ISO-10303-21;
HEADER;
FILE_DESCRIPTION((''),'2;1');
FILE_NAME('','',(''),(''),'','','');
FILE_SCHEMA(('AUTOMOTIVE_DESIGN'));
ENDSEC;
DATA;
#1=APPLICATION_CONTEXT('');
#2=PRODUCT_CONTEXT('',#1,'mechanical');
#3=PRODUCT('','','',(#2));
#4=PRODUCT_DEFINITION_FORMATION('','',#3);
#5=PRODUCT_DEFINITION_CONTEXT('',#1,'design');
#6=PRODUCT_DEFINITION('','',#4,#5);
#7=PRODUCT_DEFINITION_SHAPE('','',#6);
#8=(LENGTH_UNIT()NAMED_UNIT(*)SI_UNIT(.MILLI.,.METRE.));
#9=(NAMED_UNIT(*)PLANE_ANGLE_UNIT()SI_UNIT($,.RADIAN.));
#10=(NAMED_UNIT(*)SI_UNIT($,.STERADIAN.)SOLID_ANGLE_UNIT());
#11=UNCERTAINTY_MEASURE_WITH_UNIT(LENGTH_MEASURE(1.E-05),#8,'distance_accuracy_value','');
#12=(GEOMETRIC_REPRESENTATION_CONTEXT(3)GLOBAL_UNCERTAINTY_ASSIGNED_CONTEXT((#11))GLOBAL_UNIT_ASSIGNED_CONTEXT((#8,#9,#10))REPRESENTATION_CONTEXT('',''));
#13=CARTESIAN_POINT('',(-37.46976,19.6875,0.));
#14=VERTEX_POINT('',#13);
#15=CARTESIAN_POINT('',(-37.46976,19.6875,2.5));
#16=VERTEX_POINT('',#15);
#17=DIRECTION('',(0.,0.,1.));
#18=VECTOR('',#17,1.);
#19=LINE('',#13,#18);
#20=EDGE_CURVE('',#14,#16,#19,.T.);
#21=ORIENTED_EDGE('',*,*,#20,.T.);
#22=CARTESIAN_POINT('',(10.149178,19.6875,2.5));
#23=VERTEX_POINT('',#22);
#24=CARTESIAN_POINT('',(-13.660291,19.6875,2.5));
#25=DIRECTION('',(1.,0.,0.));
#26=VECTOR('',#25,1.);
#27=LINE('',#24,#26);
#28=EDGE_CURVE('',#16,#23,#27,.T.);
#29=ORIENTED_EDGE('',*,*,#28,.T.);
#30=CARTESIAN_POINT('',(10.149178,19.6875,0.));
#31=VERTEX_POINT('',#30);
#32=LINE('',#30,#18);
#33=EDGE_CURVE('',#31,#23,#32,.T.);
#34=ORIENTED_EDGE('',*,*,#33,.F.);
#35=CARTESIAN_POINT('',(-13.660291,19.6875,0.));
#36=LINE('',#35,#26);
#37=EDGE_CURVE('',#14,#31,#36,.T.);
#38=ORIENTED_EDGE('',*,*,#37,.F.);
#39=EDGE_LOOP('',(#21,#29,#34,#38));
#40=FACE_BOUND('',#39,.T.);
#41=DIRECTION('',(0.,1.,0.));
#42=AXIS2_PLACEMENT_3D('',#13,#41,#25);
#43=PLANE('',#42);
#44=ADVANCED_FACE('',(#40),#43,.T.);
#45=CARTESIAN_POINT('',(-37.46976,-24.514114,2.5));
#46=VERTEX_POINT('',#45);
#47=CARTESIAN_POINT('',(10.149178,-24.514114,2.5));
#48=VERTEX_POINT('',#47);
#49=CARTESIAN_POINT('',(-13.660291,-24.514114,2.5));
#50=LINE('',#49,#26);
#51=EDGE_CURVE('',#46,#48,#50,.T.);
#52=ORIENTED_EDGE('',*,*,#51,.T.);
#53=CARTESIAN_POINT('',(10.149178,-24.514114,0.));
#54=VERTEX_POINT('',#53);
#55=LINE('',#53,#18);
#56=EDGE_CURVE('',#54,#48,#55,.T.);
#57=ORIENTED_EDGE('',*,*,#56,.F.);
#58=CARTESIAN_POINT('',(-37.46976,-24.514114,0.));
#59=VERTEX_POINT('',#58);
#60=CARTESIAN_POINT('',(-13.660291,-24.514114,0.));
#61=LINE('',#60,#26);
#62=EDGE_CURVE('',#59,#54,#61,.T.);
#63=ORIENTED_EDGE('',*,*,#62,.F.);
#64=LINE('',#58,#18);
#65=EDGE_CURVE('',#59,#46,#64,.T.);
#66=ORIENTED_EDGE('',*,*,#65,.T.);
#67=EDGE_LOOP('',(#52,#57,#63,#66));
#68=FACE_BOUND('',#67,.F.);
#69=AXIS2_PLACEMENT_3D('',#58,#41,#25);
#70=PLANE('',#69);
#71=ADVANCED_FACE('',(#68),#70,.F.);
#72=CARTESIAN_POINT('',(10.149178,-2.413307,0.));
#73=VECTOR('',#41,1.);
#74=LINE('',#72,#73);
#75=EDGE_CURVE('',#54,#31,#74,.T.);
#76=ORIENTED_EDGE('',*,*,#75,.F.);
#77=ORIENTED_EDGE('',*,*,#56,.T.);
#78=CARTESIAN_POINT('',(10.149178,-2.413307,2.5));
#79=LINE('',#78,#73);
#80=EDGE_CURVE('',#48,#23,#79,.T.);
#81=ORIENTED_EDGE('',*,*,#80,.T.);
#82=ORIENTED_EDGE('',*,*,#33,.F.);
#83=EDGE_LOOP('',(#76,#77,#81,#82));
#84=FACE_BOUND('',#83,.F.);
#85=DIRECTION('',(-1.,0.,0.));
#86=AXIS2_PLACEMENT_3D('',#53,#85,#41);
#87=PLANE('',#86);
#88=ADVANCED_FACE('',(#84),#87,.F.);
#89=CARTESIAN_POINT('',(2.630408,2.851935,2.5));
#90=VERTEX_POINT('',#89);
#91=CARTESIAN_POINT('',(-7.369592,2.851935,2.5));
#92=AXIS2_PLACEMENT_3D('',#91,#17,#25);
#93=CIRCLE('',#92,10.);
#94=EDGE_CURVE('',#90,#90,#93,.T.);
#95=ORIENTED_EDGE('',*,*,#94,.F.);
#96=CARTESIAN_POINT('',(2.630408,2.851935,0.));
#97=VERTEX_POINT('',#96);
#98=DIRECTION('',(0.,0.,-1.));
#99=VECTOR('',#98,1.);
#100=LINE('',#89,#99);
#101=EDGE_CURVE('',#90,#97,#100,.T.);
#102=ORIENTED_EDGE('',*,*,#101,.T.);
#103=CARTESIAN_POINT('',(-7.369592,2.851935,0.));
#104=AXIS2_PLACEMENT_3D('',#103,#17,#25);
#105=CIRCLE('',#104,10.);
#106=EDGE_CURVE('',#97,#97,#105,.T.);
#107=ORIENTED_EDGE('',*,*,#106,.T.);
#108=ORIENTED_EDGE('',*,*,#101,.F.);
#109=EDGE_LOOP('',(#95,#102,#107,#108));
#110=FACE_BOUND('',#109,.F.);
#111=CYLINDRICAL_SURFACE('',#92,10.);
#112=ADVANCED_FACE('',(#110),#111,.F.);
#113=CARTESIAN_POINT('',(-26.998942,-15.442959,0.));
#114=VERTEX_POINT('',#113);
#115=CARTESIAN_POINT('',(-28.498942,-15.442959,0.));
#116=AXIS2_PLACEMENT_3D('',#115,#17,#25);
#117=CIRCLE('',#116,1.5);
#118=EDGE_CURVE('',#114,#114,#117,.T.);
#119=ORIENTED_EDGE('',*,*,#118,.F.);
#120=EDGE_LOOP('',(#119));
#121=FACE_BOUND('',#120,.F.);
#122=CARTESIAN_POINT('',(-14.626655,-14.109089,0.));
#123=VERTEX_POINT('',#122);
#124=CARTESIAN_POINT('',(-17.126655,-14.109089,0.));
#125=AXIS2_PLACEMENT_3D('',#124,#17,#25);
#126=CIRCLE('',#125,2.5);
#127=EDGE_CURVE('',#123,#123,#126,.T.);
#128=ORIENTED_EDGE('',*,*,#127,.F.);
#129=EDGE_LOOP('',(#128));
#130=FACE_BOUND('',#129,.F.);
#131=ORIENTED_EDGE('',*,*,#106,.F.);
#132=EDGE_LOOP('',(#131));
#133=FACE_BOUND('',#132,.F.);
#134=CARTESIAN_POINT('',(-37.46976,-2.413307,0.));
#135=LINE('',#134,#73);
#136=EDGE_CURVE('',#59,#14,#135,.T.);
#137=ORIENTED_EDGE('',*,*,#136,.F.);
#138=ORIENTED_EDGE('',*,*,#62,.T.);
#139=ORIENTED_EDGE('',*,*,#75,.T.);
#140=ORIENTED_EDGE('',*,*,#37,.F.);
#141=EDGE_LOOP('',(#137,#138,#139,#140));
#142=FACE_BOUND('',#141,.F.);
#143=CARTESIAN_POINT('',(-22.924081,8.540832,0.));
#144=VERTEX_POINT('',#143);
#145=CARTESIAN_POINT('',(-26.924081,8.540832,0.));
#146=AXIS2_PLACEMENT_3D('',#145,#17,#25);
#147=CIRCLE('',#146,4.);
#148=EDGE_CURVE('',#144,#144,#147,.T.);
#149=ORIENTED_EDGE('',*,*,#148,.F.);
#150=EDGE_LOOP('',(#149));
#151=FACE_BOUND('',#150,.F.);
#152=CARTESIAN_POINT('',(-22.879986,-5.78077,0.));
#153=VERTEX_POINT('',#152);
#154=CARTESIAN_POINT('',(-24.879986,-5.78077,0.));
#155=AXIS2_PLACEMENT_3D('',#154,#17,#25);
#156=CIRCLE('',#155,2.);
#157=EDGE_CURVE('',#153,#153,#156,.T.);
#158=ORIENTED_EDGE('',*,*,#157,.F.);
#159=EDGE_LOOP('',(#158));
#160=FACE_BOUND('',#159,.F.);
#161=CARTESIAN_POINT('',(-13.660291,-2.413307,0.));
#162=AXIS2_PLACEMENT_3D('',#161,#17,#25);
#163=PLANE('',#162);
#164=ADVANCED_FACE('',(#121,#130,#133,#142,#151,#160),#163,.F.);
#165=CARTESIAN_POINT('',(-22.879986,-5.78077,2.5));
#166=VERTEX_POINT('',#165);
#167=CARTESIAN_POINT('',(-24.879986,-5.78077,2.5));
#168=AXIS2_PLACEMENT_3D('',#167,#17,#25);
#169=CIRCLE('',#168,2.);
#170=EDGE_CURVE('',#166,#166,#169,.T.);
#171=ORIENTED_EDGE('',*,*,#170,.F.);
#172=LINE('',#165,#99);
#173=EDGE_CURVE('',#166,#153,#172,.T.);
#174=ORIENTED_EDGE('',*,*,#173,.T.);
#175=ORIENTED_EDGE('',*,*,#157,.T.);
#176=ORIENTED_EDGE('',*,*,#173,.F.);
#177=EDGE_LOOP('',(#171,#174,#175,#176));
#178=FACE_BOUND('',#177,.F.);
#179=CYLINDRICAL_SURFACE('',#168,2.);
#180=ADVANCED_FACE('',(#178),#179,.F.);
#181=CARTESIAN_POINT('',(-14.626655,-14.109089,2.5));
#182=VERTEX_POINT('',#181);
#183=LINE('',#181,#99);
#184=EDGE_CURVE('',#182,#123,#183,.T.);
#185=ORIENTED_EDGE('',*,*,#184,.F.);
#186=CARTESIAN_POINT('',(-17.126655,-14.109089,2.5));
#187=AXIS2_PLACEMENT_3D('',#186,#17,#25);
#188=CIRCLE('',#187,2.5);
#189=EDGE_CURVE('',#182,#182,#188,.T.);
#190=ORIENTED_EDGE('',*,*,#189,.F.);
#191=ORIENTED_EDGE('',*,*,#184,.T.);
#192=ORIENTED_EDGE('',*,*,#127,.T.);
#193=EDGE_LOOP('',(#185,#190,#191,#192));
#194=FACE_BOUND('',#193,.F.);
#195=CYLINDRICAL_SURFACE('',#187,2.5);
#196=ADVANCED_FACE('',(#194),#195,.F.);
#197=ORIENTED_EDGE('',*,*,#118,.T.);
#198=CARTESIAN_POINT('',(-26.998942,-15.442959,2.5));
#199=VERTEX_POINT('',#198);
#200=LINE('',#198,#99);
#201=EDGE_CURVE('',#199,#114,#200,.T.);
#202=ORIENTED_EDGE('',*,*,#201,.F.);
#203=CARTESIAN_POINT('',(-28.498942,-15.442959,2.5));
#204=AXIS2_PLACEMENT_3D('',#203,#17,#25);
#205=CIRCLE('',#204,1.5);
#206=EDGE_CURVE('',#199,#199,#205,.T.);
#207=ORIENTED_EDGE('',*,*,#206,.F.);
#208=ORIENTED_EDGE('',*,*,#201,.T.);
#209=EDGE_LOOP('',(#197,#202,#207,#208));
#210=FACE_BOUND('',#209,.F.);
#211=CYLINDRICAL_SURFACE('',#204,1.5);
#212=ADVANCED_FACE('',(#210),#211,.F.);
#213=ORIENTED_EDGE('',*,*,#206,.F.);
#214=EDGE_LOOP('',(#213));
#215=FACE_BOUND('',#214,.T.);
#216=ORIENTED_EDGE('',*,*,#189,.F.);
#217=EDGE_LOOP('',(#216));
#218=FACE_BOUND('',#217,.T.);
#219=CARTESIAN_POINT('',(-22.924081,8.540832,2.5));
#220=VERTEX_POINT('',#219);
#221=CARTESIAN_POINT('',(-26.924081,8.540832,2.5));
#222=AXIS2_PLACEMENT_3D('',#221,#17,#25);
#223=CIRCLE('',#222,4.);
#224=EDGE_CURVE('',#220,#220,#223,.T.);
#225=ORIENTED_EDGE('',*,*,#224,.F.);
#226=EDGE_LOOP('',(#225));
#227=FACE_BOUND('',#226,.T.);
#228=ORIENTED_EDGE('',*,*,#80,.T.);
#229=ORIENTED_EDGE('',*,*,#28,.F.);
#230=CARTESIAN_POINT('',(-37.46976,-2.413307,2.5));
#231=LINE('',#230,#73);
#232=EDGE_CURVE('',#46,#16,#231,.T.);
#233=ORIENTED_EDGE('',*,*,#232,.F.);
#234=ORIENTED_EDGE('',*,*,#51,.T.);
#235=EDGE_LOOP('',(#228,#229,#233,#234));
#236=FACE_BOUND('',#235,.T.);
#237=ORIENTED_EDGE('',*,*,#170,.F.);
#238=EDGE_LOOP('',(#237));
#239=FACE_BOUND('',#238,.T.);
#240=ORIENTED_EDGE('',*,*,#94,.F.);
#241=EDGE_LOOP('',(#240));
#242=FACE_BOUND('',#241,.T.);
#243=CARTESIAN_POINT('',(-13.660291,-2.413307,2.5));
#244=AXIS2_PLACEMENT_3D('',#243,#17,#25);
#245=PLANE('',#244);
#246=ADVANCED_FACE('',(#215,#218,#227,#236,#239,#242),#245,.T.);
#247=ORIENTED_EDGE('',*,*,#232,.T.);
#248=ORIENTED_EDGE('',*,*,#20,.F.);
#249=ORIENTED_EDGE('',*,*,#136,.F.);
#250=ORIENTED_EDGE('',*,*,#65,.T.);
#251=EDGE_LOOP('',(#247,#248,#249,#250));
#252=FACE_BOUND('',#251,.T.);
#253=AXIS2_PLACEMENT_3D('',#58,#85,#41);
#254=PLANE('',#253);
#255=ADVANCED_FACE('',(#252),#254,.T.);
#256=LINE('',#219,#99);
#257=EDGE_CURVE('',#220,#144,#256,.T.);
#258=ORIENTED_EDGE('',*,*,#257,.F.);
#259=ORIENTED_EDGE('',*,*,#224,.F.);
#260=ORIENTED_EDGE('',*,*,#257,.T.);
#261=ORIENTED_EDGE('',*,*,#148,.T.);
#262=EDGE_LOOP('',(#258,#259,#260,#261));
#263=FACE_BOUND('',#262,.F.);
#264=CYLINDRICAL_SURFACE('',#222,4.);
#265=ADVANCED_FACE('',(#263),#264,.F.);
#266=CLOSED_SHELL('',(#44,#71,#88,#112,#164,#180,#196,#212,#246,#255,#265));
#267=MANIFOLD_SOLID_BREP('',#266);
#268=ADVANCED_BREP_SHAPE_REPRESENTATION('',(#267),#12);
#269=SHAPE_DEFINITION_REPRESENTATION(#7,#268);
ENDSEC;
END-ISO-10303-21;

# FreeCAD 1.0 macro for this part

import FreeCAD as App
import Part
import Sketcher

doc = App.newDocument("Part")
body = doc.addObject("PartDesign::Body", "Body")

sketch1 = body.newObject("Sketcher::SketchObject", "Sketch")
sketch1.AttachmentSupport = (doc.getObject("XY_Plane"), [""])
sketch1.MapMode = "FlatFace"
sketch1.addGeometry([
    Part.LineSegment(App.Vector(-37, 20, 0), App.Vector(-37, -25, 0)),
    Part.LineSegment(App.Vector(-37, -25, 0), App.Vector(10, -25, 0)),
    Part.LineSegment(App.Vector(10, -25, 0), App.Vector(10, 20, 0)),
    Part.LineSegment(App.Vector(10, 20, 0), App.Vector(-37, 20, 0)),
], False)
sketch1.addConstraint([
    Sketcher.Constraint("Coincident", 0, 2, 1, 1),
    Sketcher.Constraint("Coincident", 1, 2, 2, 1),
    Sketcher.Constraint("Coincident", 2, 2, 3, 1),
    Sketcher.Constraint("Coincident", 3, 2, 0, 1),
    Sketcher.Constraint("Vertical", 0),
    Sketcher.Constraint("Horizontal", 1),
    Sketcher.Constraint("Vertical", 2),
    Sketcher.Constraint("Horizontal", 3),
    Sketcher.Constraint("DistanceX", 1, 1, 1, 2, 47.618939),
    Sketcher.Constraint("DistanceY", -1, 1, 2, 2, 19.6875),
    Sketcher.Constraint("DistanceY", 0, 2, 0, 1, 44.201614),
    Sketcher.Constraint("DistanceX", 0, 2, -1, 1, 37.46976),
])
pad1 = body.newObject("PartDesign::Pad", "Pad")
pad1.Profile = sketch1
pad1.Length = 2.5

sketch2 = body.newObject("Sketcher::SketchObject", "Sketch001")
sketch2.AttachmentSupport = (doc.getObject("XY_Plane"), [""])
sketch2.MapMode = "FlatFace"
sketch2.AttachmentOffset = App.Placement(App.Vector(0, 0, 2.5), App.Rotation())
sketch2.addGeometry([
    Part.Circle(App.Vector(-28.5, -15.4, 0), App.Vector(0, 0, 1), 1.5),
    Part.Circle(App.Vector(-26.9, 8.5, 0), App.Vector(0, 0, 1), 4),
    Part.Circle(App.Vector(-7.4, 2.9, 0), App.Vector(0, 0, 1), 10),
    Part.Circle(App.Vector(-24.9, -5.8, 0), App.Vector(0, 0, 1), 2),
    Part.Circle(App.Vector(-17.1, -14.1, 0), App.Vector(0, 0, 1), 2.5),
], False)
sketch2.addConstraint([
    Sketcher.Constraint("Diameter", 0, 3.0),
    Sketcher.Constraint("Diameter", 1, 8.0),
    Sketcher.Constraint("Diameter", 2, 20.0),
    Sketcher.Constraint("Diameter", 3, 4.0),
    Sketcher.Constraint("Diameter", 4, 5.0),
    Sketcher.Constraint("DistanceX", 0, 3, -1, 1, 28.498942),
    Sketcher.Constraint("DistanceY", 0, 3, -1, 1, 15.442959),
    Sketcher.Constraint("DistanceX", 1, 3, -1, 1, 26.924081),
    Sketcher.Constraint("DistanceY", 3, 3, -1, 1, 5.78077),
    Sketcher.Constraint("DistanceY", 4, 3, -1, 1, 14.109089),
    Sketcher.Constraint("DistanceY", 0, 3, 1, 3, 23.983791),
    Sketcher.Constraint("DistanceX", 1, 3, 2, 3, 19.554489),
    Sketcher.Constraint("DistanceX", 3, 3, 4, 3, 7.753331),
    Sketcher.Constraint("DistanceY", -1, 1, 2, 3, 2.851935),
    Sketcher.Constraint("DistanceX", 3, 3, -1, 1, 24.879986),
])
pocket1 = body.newObject("PartDesign::Pocket", "Pocket")
pocket1.Profile = sketch2
pocket1.Length = 3

doc.recompute()
